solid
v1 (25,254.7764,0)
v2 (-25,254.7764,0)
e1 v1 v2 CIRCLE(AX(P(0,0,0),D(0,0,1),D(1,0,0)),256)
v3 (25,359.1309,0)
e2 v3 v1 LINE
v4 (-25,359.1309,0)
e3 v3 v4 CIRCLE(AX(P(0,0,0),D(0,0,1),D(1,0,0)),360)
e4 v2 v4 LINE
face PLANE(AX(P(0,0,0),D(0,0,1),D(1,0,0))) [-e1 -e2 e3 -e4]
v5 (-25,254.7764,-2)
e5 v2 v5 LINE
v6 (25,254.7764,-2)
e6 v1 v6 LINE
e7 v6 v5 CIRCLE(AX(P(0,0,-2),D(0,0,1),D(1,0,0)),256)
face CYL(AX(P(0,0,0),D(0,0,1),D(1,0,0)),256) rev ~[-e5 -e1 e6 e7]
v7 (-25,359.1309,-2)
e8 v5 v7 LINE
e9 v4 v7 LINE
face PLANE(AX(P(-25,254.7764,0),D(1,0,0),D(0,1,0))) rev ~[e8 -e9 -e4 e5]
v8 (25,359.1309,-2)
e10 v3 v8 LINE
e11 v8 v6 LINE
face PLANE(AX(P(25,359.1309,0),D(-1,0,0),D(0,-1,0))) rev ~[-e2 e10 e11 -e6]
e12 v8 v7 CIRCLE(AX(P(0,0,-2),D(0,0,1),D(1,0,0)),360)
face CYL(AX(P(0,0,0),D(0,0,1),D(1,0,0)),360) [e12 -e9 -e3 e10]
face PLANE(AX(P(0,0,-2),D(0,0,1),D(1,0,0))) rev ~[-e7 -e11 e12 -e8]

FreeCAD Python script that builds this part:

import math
import FreeCAD as App
import Part
import Sketcher

V = App.Vector

doc = App.newDocument("Part")
body = doc.addObject("PartDesign::Body", "Body")

# Sketch on XY plane
sketch1 = body.newObject("Sketcher::SketchObject", "Sketch")
sketch1.AttachmentSupport = (doc.getObject("XY_Plane"), [""])
sketch1.MapMode = "FlatFace"
sketch1.addGeometry(Part.ArcOfCircle(Part.Circle(V(0, 0, 0), V(0, 0, 1), 256), math.radians(84.4), math.radians(95.6)), False)
sketch1.addGeometry(Part.LineSegment(V(25, 255, 0), V(25, 359, 0)), False)
sketch1.addGeometry(Part.ArcOfCircle(Part.Circle(V(0, 0, 0), V(0, 0, 1), 360), math.radians(86.02), math.radians(93.98)), False)
sketch1.addGeometry(Part.LineSegment(V(-25, 359, 0), V(-25, 255, 0)), False)
sketch1.addConstraint(Sketcher.Constraint("Coincident", 0, 1, 1, 1))
sketch1.addConstraint(Sketcher.Constraint("Coincident", 1, 2, 2, 1))
sketch1.addConstraint(Sketcher.Constraint("Coincident", 2, 2, 3, 1))
sketch1.addConstraint(Sketcher.Constraint("Coincident", 3, 2, 0, 2))
sketch1.addConstraint(Sketcher.Constraint("Vertical", 1))
sketch1.addConstraint(Sketcher.Constraint("Vertical", 3))
sketch1.addConstraint(Sketcher.Constraint("Coincident", 0, 3, -1, 1))
sketch1.addConstraint(Sketcher.Constraint("Coincident", 2, 3, -1, 1))
sketch1.addConstraint(Sketcher.Constraint("Horizontal", 1, 2, 2, 2))
sketch1.addConstraint(Sketcher.Constraint("Radius", 0, 256.0))
sketch1.addConstraint(Sketcher.Constraint("Radius", 2, 360.0))
sketch1.addConstraint(Sketcher.Constraint("DistanceX", 2, 2, 1, 2, 50.0))
pad1 = body.newObject("PartDesign::Pad", "Pad")
pad1.Profile = sketch1
pad1.Length = 2
pad1.Reversed = True

doc.recompute()
